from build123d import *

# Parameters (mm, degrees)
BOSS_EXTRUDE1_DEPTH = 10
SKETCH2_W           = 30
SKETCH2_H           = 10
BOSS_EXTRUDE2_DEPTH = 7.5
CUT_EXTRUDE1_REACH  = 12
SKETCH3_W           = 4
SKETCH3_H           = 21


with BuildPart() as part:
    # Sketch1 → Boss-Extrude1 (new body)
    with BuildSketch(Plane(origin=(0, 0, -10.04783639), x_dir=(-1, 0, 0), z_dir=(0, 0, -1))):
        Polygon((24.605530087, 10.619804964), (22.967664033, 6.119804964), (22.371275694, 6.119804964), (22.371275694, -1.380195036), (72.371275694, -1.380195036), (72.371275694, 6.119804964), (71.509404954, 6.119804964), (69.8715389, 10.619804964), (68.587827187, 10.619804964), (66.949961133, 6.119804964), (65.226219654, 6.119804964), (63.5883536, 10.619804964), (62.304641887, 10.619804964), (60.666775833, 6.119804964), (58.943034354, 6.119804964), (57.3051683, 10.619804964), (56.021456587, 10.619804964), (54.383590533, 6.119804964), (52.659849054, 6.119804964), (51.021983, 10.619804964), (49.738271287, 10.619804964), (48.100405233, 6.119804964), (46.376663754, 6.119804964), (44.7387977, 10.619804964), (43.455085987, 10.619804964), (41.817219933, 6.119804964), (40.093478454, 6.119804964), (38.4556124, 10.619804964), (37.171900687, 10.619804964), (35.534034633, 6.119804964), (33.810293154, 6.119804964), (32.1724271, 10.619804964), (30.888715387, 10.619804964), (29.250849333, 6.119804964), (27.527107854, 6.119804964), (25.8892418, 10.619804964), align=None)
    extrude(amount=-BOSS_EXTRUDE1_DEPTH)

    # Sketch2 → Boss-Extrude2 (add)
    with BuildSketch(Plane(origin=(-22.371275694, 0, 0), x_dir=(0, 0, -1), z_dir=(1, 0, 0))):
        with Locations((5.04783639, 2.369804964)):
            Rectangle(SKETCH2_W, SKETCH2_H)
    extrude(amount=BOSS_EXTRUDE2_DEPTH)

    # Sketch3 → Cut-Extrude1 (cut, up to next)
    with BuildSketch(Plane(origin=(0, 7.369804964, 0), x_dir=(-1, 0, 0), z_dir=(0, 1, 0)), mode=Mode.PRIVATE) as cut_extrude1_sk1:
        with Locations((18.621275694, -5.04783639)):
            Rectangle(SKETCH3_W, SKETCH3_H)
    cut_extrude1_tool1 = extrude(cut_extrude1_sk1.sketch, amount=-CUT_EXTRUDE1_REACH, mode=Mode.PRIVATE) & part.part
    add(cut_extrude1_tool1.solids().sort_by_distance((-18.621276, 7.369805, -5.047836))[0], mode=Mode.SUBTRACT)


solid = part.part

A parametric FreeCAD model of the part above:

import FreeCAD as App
import Part
import Sketcher
from FreeCAD import Vector
Q = App.Units.Quantity


def add_polygon(sketch, points):
    """Adds a closed chain of lines whose ends are joined by coincident constraints."""
    first, n = sketch.GeometryCount, len(points)
    for a, b in zip(points, points[1:] + points[:1]):
        sketch.addGeometry(Part.LineSegment(App.Vector(*a, 0), App.Vector(*b, 0)), False)
    for i in range(n):
        sketch.addConstraint(Sketcher.Constraint("Coincident", first + i, 2, first + (i + 1) % n, 1))

doc = App.newDocument("Part")
body = doc.addObject("PartDesign::Body", "Body")

# Sketch on XY plane
sketch1 = doc.addObject("Sketcher::SketchObject", "Sketch")
body.addObject(sketch1)
sketch1.AttachmentSupport = (doc.XY_Plane, [""])
sketch1.MapMode = "FlatFace"
sketch1.AttachmentOffset = App.Placement(Vector(0, 0, -10.047836), App.Rotation())
add_polygon(sketch1, [(-24.60553, 10.619805), (-22.967664, 6.119805), (-22.371276, 6.119805), (-22.371276, -1.380195), (-72.371276, -1.380195), (-72.371276, 6.119805), (-71.509405, 6.119805), (-69.871539, 10.619805), (-68.587827, 10.619805), (-66.949961, 6.119805), (-65.22622, 6.119805), (-63.588354, 10.619805), (-62.304642, 10.619805), (-60.666776, 6.119805), (-58.943034, 6.119805), (-57.305168, 10.619805), (-56.021457, 10.619805), (-54.383591, 6.119805), (-52.659849, 6.119805), (-51.021983, 10.619805), (-49.738271, 10.619805), (-48.100405, 6.119805), (-46.376664, 6.119805), (-44.738798, 10.619805), (-43.455086, 10.619805), (-41.81722, 6.119805), (-40.093478, 6.119805), (-38.455612, 10.619805), (-37.171901, 10.619805), (-35.534035, 6.119805), (-33.810293, 6.119805), (-32.172427, 10.619805), (-30.888715, 10.619805), (-29.250849, 6.119805), (-27.527108, 6.119805), (-25.889242, 10.619805)])  # lines 0-35
sketch1.addConstraint([
    Sketcher.Constraint("Horizontal", 1),
    Sketcher.Constraint("Vertical", 2),
    Sketcher.Constraint("Horizontal", 3),
    Sketcher.Constraint("Vertical", 4),
    Sketcher.Constraint("Horizontal", 5),
    Sketcher.Constraint("Horizontal", 7),
    Sketcher.Constraint("Horizontal", 9),
    Sketcher.Constraint("Horizontal", 11),
    Sketcher.Constraint("Horizontal", 13),
    Sketcher.Constraint("Horizontal", 15),
    Sketcher.Constraint("Horizontal", 17),
    Sketcher.Constraint("Horizontal", 19),
    Sketcher.Constraint("Horizontal", 21),
    Sketcher.Constraint("Horizontal", 23),
    Sketcher.Constraint("Horizontal", 25),
    Sketcher.Constraint("Horizontal", 27),
    Sketcher.Constraint("Horizontal", 29),
    Sketcher.Constraint("Horizontal", 31),
    Sketcher.Constraint("Horizontal", 33),
    Sketcher.Constraint("Horizontal", 35),
    Sketcher.Constraint("Parallel", 0, 8),
    Sketcher.Constraint("Parallel", 6, 10),
    Sketcher.Constraint("Parallel", 8, 12),
    Sketcher.Constraint("Parallel", 10, 14),
    Sketcher.Constraint("Parallel", 12, 16),
    Sketcher.Constraint("Parallel", 14, 18),
    Sketcher.Constraint("Parallel", 16, 20),
    Sketcher.Constraint("Parallel", 18, 22),
    Sketcher.Constraint("Parallel", 20, 24),
    Sketcher.Constraint("Parallel", 22, 26),
    Sketcher.Constraint("Parallel", 24, 28),
    Sketcher.Constraint("Parallel", 26, 30),
    Sketcher.Constraint("Parallel", 28, 32),
    Sketcher.Constraint("Parallel", 30, 34),
    Sketcher.Constraint("Horizontal", 1, 2, 4, 2),
    Sketcher.Constraint("Horizontal", 5, 2, 8, 2),
    Sketcher.Constraint("Horizontal", 7, 2, 10, 2),
    Sketcher.Constraint("Horizontal", 9, 2, 12, 2),
    Sketcher.Constraint("Horizontal", 11, 2, 14, 2),
    Sketcher.Constraint("Horizontal", 13, 2, 16, 2),
    Sketcher.Constraint("Horizontal", 15, 2, 18, 2),
    Sketcher.Constraint("Horizontal", 17, 2, 20, 2),
    Sketcher.Constraint("Horizontal", 19, 2, 22, 2),
    Sketcher.Constraint("Horizontal", 21, 2, 24, 2),
    Sketcher.Constraint("Horizontal", 23, 2, 26, 2),
    Sketcher.Constraint("Horizontal", 25, 2, 28, 2),
    Sketcher.Constraint("Horizontal", 27, 2, 30, 2),
    Sketcher.Constraint("Horizontal", 29, 2, 32, 2),
    Sketcher.Constraint("Horizontal", 31, 2, 34, 2),
    Sketcher.Constraint("Equal", 7, 11),
    Sketcher.Constraint("Equal", 9, 13),
    Sketcher.Constraint("Equal", 11, 15),
    Sketcher.Constraint("Equal", 13, 17),
    Sketcher.Constraint("Equal", 15, 19),
    Sketcher.Constraint("Equal", 17, 21),
    Sketcher.Constraint("Equal", 19, 23),
    Sketcher.Constraint("Equal", 21, 25),
    Sketcher.Constraint("Equal", 23, 27),
    Sketcher.Constraint("Equal", 25, 29),
    Sketcher.Constraint("Equal", 27, 31),
    Sketcher.Constraint("Equal", 29, 33),
    Sketcher.Constraint("Equal", 31, 35),
    Sketcher.Constraint("Equal", 0, 6),
    Sketcher.Constraint("DistanceX", 3, 2, 3, 1, 50.0),
    Sketcher.Constraint("Angle", 0, Q("-70 deg")),
    Sketcher.Constraint("DistanceY", 2, 2, 2, 1, 7.5),
    Sketcher.Constraint("DistanceY", 3, 2, 6, 2, 12.0),
    Sketcher.Constraint("DistanceX", 1, 1, 1, 2, 0.596388),
    Sketcher.Constraint("DistanceX", 5, 1, 5, 2, 0.861871),
    Sketcher.Constraint("DistanceX", 7, 1, 7, 2, 1.283712),
    Sketcher.Constraint("DistanceX", 27, 2, -1, 1, 37.171901),
    Sketcher.Constraint("DistanceY", -1, 1, 0, 2, 6.119805),
])
pad1 = doc.addObject("PartDesign::Pad", "Pad")
body.addObject(pad1)
pad1.Profile = sketch1
pad1.Length = 10

# Sketch on YZ plane
sketch2 = doc.addObject("Sketcher::SketchObject", "Sketch001")
body.addObject(sketch2)
sketch2.AttachmentSupport = (doc.YZ_Plane, [""])
sketch2.MapMode = "FlatFace"
sketch2.AttachmentOffset = App.Placement(Vector(0, 0, -22.371276), App.Rotation())
add_polygon(sketch2, [(7.369805, 9.952164), (-2.630195, 9.952164), (-2.630195, -20.047836), (7.369805, -20.047836)])  # lines 0-3
sketch2.addConstraint([
    Sketcher.Constraint("Horizontal", 0),
    Sketcher.Constraint("Vertical", 1),
    Sketcher.Constraint("Horizontal", 2),
    Sketcher.Constraint("Vertical", 3),
    Sketcher.Constraint("DistanceX", 0, 2, 0, 1, 10.0),
    Sketcher.Constraint("DistanceY", 1, 2, 1, 1, 30.0),
    Sketcher.Constraint("DistanceX", 0, 2, -1, 1, 2.630195),
    Sketcher.Constraint("DistanceY", -1, 1, 0, 2, 9.952164),
])
pad2 = doc.addObject("PartDesign::Pad", "Pad001")
body.addObject(pad2)
pad2.Profile = sketch2
pad2.Length = 7.5

# Sketch on XZ plane
sketch3 = doc.addObject("Sketcher::SketchObject", "Sketch002")
body.addObject(sketch3)
sketch3.AttachmentSupport = (doc.XZ_Plane, [""])
sketch3.MapMode = "FlatFace"
sketch3.AttachmentOffset = App.Placement(Vector(0, 0, -7.369805), App.Rotation())
add_polygon(sketch3, [(-16.621276, 5.452164), (-16.621276, -15.547836), (-20.621276, -15.547836), (-20.621276, 5.452164)])  # lines 0-3
sketch3.addConstraint([
    Sketcher.Constraint("Vertical", 0),
    Sketcher.Constraint("Horizontal", 1),
    Sketcher.Constraint("Vertical", 2),
    Sketcher.Constraint("Horizontal", 3),
    Sketcher.Constraint("DistanceX", 1, 2, 1, 1, 4.0),
    Sketcher.Constraint("DistanceY", 0, 2, 0, 1, 21.0),
    Sketcher.Constraint("DistanceX", 0, 2, -1, 1, 16.621276),
    Sketcher.Constraint("DistanceY", 0, 2, -1, 1, 15.547836),
])
pocket1 = doc.addObject("PartDesign::Pocket", "Pocket")
body.addObject(pocket1)
pocket1.Profile = sketch3
pocket1.Type = "UpToFirst"
pocket1.Reversed = True

doc.recompute()
